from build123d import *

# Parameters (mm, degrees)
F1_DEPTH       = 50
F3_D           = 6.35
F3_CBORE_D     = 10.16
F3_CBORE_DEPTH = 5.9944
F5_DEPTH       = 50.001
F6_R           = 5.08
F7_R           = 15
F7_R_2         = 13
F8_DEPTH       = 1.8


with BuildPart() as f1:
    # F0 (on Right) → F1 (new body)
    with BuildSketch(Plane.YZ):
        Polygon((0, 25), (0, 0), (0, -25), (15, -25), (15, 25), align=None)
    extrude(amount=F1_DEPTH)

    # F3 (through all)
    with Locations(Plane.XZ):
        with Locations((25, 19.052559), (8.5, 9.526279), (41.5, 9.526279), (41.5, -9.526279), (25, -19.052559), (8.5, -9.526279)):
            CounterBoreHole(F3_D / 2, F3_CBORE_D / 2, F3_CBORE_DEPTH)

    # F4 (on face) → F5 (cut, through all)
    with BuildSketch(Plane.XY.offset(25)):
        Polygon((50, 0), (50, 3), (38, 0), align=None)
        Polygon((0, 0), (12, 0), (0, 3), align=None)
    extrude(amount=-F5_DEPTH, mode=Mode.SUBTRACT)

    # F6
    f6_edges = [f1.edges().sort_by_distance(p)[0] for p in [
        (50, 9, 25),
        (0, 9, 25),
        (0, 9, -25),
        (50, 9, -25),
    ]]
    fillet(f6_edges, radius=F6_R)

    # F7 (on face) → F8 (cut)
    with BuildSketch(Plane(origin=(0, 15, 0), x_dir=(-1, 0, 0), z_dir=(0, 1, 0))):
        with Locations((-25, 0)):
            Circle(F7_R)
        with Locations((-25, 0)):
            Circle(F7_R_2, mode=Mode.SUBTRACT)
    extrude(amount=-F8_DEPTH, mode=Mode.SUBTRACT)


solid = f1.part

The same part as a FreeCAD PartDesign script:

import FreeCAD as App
import Part
import Sketcher

V = App.Vector


def edges_at(feature, points):
    """Names of the edges that pass closest to the given points."""
    edges = feature.Shape.Edges
    near = lambda p: min(range(len(edges)), key=lambda i: edges[i].distToShape(Part.Vertex(*p))[0])
    return sorted({f"Edge{near(p) + 1}" for p in points})


def add_polygon(sketch, points):
    """Adds a closed chain of lines whose ends are joined by coincident constraints."""
    first, n = sketch.GeometryCount, len(points)
    for a, b in zip(points, points[1:] + points[:1]):
        sketch.addGeometry(Part.LineSegment(App.Vector(*a, 0), App.Vector(*b, 0)), False)
    for i in range(n):
        sketch.addConstraint(Sketcher.Constraint("Coincident", first + i, 2, first + (i + 1) % n, 1))

doc = App.newDocument("Part")
body = doc.addObject("PartDesign::Body", "Body")

# Sketch on YZ plane
sketch1 = body.newObject("Sketcher::SketchObject", "Sketch")
sketch1.AttachmentSupport = (doc.getObject("YZ_Plane"), [""])
sketch1.MapMode = "FlatFace"
add_polygon(sketch1, [(0, 25), (0, -25), (15, -25), (15, 25)])  # lines 0-3
sketch1.addConstraint([
    Sketcher.Constraint("Vertical", 0),
    Sketcher.Constraint("Horizontal", 1),
    Sketcher.Constraint("Vertical", 2),
    Sketcher.Constraint("Horizontal", 3),
    Sketcher.Constraint("Symmetric", 0, 2, 3, 2, -1, 1),
    Sketcher.Constraint("DistanceX", 1, 1, 1, 2, 15.0),
    Sketcher.Constraint("DistanceY", 0, 2, 0, 1, 50.0),
])
pad1 = body.newObject("PartDesign::Pad", "Pad")
pad1.Profile = sketch1
pad1.Length = 50

# Sketch on XZ plane
sketch2 = body.newObject("Sketcher::SketchObject", "Sketch001")
sketch2.AttachmentSupport = (doc.getObject("XZ_Plane"), [""])
sketch2.MapMode = "FlatFace"
sketch2.addGeometry([
    Part.Circle(V(25, 19.1, 0), V(0, 0, 1), 3.2),  # 0
    Part.Circle(V(8.5, 9.5, 0), V(0, 0, 1), 3.2),  # 1
    Part.Circle(V(41.5, 9.5, 0), V(0, 0, 1), 3.2),  # 2
    Part.Circle(V(41.5, -9.5, 0), V(0, 0, 1), 3.2),  # 3
    Part.Circle(V(25, -19.1, 0), V(0, 0, 1), 3.2),  # 4
    Part.Circle(V(8.5, -9.5, 0), V(0, 0, 1), 3.2),  # 5
], False)
sketch2.addConstraint([
    Sketcher.Constraint("Equal", 0, 1),
    Sketcher.Constraint("Equal", 1, 2),
    Sketcher.Constraint("Equal", 2, 3),
    Sketcher.Constraint("Equal", 3, 4),
    Sketcher.Constraint("Equal", 4, 5),
    Sketcher.Constraint("Symmetric", 2, 3, 3, 3, -1),
    Sketcher.Constraint("Symmetric", 0, 3, 4, 3, -1),
    Sketcher.Constraint("Symmetric", 1, 3, 5, 3, -1),
    Sketcher.Constraint("Horizontal", 1, 3, 2, 3),
    Sketcher.Constraint("Diameter", 0, 6.35),
    Sketcher.Constraint("DistanceX", -1, 1, 0, 3, 25.0),
    Sketcher.Constraint("DistanceX", 1, 3, 2, 3, 33.0),
    Sketcher.Constraint("DistanceX", -1, 1, 1, 3, 8.5),
    Sketcher.Constraint("DistanceY", -1, 1, 0, 3, 19.052559),
    Sketcher.Constraint("DistanceY", -1, 1, 1, 3, 9.526279),
])
doc.recompute()
hole = body.newObject("PartDesign::Hole", "Hole")
hole.Profile = sketch2
hole.ThreadType = "None"
hole.Diameter = 6.35
hole.DepthType = "ThroughAll"
hole.HoleCutType = "Counterbore"
hole.HoleCutDiameter = 10.16
hole.HoleCutDepth = 5.9944

# Sketch on XY plane
sketch3 = body.newObject("Sketcher::SketchObject", "Sketch002")
sketch3.AttachmentSupport = (doc.getObject("XY_Plane"), [""])
sketch3.MapMode = "FlatFace"
sketch3.AttachmentOffset = App.Placement(V(0, 0, 25), App.Rotation())
add_polygon(sketch3, [(50, 0), (50, 3), (38, 0)])  # lines 0-2
add_polygon(sketch3, [(0, 0), (12, 0), (0, 3)])  # lines 3-5
sketch3.addConstraint([
    Sketcher.Constraint("Vertical", 0),
    Sketcher.Constraint("Horizontal", 2),
    Sketcher.Constraint("Horizontal", 3),
    Sketcher.Constraint("Vertical", 5),
    Sketcher.Constraint("Coincident", 5, 2, -1, 1),
    Sketcher.Constraint("PointOnObject", 1, 2, -1),
    Sketcher.Constraint("Horizontal", 0, 2, 4, 2),
    Sketcher.Constraint("Equal", 2, 3),
    Sketcher.Constraint("DistanceX", 2, 1, 2, 2, 12.0),
    Sketcher.Constraint("DistanceY", 0, 1, 0, 2, 3.0),
    Sketcher.Constraint("DistanceX", -1, 1, 0, 2, 50.0),
])
pocket1 = body.newObject("PartDesign::Pocket", "Pocket")
pocket1.Profile = sketch3
pocket1.Type = "ThroughAll"
doc.recompute()

fillet = body.newObject("PartDesign::Fillet", "Fillet")
fillet.Base = (pocket1, edges_at(pocket1, [
    (50, 9, 25),
    (0, 9, 25),
    (0, 9, -25),
    (50, 9, -25),
]))
fillet.Radius = 5.08

# Sketch on XZ plane
sketch4 = body.newObject("Sketcher::SketchObject", "Sketch003")
sketch4.AttachmentSupport = (doc.getObject("XZ_Plane"), [""])
sketch4.MapMode = "FlatFace"
sketch4.AttachmentOffset = App.Placement(V(0, 0, -15), App.Rotation())
sketch4.addGeometry([
    Part.Circle(V(25, 0, 0), V(0, 0, 1), 15),
    Part.Circle(V(25, 0, 0), V(0, 0, 1), 13),
], False)
sketch4.addConstraint([
    Sketcher.Constraint("Coincident", 1, 3, 0, 3),
    Sketcher.Constraint("PointOnObject", 0, 3, -1),
    Sketcher.Constraint("Diameter", 0, 30.0),
    Sketcher.Constraint("Diameter", 1, 26.0),
    Sketcher.Constraint("DistanceX", -1, 1, 0, 3, 25.0),
])
pocket2 = body.newObject("PartDesign::Pocket", "Pocket001")
pocket2.Profile = sketch4
pocket2.Length = 1.8
pocket2.Reversed = True

doc.recompute()
